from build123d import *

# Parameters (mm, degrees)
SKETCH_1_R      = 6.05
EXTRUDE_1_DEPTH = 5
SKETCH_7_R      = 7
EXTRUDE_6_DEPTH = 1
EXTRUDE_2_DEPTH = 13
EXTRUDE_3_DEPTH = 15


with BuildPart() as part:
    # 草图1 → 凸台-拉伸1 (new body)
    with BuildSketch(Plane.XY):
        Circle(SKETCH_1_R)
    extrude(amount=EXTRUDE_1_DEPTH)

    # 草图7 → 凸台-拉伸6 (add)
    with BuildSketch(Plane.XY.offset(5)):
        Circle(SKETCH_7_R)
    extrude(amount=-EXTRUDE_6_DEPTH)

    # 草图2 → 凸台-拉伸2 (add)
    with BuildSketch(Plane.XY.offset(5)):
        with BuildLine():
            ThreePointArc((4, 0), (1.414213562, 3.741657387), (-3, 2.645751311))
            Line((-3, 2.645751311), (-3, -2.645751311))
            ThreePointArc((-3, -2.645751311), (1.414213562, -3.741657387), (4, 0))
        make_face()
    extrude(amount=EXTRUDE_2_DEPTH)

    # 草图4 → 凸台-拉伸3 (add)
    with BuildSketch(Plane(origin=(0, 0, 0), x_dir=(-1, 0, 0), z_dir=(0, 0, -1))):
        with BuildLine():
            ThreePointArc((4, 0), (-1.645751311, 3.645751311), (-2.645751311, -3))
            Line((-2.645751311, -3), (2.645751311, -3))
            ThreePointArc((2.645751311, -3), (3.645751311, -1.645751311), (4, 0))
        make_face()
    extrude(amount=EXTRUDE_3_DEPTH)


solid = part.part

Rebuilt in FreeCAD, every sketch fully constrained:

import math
import FreeCAD as App
import Part
import Sketcher
from FreeCAD import Vector

doc = App.newDocument("Part")
body = doc.addObject("PartDesign::Body", "Body")

# Sketch on XY plane
sketch1 = body.newObject("Sketcher::SketchObject", "Sketch")
sketch1.AttachmentSupport = (doc.getObject("XY_Plane"), [""])
sketch1.MapMode = "FlatFace"
sketch1.addGeometry(Part.Circle(Vector(0, 0, 0), Vector(0, 0, 1), 6), False)
sketch1.addConstraint([
    Sketcher.Constraint("Coincident", 0, 3, -1, 1),
    Sketcher.Constraint("Diameter", 0, 12.1),
])
pad1 = body.newObject("PartDesign::Pad", "Pad")
pad1.Profile = sketch1
pad1.Length = 5

# Sketch on XY plane
sketch2 = body.newObject("Sketcher::SketchObject", "Sketch001")
sketch2.AttachmentSupport = (doc.getObject("XY_Plane"), [""])
sketch2.MapMode = "FlatFace"
sketch2.AttachmentOffset = App.Placement(Vector(0, 0, 5), App.Rotation())
sketch2.addGeometry(Part.Circle(Vector(0, 0, 0), Vector(0, 0, 1), 7), False)
sketch2.addConstraint([
    Sketcher.Constraint("Coincident", 0, 3, -1, 1),
    Sketcher.Constraint("Diameter", 0, 14.0),
])
pad2 = body.newObject("PartDesign::Pad", "Pad001")
pad2.Profile = sketch2
pad2.Length = 1
pad2.Reversed = True

# Sketch on XY plane
sketch3 = body.newObject("Sketcher::SketchObject", "Sketch002")
sketch3.AttachmentSupport = (doc.getObject("XY_Plane"), [""])
sketch3.MapMode = "FlatFace"
sketch3.AttachmentOffset = App.Placement(Vector(0, 0, 5), App.Rotation())
sketch3.addGeometry([
    Part.ArcOfCircle(Part.Circle(Vector(0, 0, 0), Vector(0, 0, 1), 4), math.radians(0), math.radians(139)),
    Part.LineSegment(Vector(-3, 2.6, 0), Vector(-3, -2.6, 0)),
    Part.ArcOfCircle(Part.Circle(Vector(0, 0, 0), Vector(0, 0, 1), 4), math.radians(-139), math.radians(0)),
], False)
sketch3.addConstraint([
    Sketcher.Constraint("Coincident", 0, 2, 1, 1),
    Sketcher.Constraint("Coincident", 1, 2, 2, 1),
    Sketcher.Constraint("Tangent", 2, 2, 0, 1),
    Sketcher.Constraint("Vertical", 1),
    Sketcher.Constraint("Coincident", 0, 3, -1, 1),
    Sketcher.Constraint("Equal", 0, 2),
    Sketcher.Constraint("PointOnObject", 2, 2, -1),
    Sketcher.Constraint("Radius", 0, 4.0),
    Sketcher.Constraint("DistanceX", 0, 2, -1, 1, 3.0),
])
pad3 = body.newObject("PartDesign::Pad", "Pad002")
pad3.Profile = sketch3
pad3.Length = 13

# Sketch on XY plane
sketch4 = body.newObject("Sketcher::SketchObject", "Sketch003")
sketch4.AttachmentSupport = (doc.getObject("XY_Plane"), [""])
sketch4.MapMode = "FlatFace"
sketch4.addGeometry([
    Part.ArcOfCircle(Part.Circle(Vector(0, 0, 0), Vector(0, 0, 1), 4), math.radians(-49), math.radians(180)),
    Part.LineSegment(Vector(2.6, -3, 0), Vector(-2.6, -3, 0)),
    Part.ArcOfCircle(Part.Circle(Vector(0, 0, 0), Vector(0, 0, 1), 4), math.radians(180), math.radians(229)),
], False)
sketch4.addConstraint([
    Sketcher.Constraint("Coincident", 0, 1, 1, 1),
    Sketcher.Constraint("Coincident", 1, 2, 2, 2),
    Sketcher.Constraint("Tangent", 2, 1, 0, 2),
    Sketcher.Constraint("Horizontal", 1),
    Sketcher.Constraint("Coincident", 0, 3, -1, 1),
    Sketcher.Constraint("Equal", 0, 2),
    Sketcher.Constraint("PointOnObject", 2, 1, -1),
    Sketcher.Constraint("Radius", 0, 4.0),
    Sketcher.Constraint("DistanceY", 0, 1, -1, 1, 3.0),
])
pad4 = body.newObject("PartDesign::Pad", "Pad003")
pad4.Profile = sketch4
pad4.Length = 15
pad4.Reversed = True

doc.recompute()
